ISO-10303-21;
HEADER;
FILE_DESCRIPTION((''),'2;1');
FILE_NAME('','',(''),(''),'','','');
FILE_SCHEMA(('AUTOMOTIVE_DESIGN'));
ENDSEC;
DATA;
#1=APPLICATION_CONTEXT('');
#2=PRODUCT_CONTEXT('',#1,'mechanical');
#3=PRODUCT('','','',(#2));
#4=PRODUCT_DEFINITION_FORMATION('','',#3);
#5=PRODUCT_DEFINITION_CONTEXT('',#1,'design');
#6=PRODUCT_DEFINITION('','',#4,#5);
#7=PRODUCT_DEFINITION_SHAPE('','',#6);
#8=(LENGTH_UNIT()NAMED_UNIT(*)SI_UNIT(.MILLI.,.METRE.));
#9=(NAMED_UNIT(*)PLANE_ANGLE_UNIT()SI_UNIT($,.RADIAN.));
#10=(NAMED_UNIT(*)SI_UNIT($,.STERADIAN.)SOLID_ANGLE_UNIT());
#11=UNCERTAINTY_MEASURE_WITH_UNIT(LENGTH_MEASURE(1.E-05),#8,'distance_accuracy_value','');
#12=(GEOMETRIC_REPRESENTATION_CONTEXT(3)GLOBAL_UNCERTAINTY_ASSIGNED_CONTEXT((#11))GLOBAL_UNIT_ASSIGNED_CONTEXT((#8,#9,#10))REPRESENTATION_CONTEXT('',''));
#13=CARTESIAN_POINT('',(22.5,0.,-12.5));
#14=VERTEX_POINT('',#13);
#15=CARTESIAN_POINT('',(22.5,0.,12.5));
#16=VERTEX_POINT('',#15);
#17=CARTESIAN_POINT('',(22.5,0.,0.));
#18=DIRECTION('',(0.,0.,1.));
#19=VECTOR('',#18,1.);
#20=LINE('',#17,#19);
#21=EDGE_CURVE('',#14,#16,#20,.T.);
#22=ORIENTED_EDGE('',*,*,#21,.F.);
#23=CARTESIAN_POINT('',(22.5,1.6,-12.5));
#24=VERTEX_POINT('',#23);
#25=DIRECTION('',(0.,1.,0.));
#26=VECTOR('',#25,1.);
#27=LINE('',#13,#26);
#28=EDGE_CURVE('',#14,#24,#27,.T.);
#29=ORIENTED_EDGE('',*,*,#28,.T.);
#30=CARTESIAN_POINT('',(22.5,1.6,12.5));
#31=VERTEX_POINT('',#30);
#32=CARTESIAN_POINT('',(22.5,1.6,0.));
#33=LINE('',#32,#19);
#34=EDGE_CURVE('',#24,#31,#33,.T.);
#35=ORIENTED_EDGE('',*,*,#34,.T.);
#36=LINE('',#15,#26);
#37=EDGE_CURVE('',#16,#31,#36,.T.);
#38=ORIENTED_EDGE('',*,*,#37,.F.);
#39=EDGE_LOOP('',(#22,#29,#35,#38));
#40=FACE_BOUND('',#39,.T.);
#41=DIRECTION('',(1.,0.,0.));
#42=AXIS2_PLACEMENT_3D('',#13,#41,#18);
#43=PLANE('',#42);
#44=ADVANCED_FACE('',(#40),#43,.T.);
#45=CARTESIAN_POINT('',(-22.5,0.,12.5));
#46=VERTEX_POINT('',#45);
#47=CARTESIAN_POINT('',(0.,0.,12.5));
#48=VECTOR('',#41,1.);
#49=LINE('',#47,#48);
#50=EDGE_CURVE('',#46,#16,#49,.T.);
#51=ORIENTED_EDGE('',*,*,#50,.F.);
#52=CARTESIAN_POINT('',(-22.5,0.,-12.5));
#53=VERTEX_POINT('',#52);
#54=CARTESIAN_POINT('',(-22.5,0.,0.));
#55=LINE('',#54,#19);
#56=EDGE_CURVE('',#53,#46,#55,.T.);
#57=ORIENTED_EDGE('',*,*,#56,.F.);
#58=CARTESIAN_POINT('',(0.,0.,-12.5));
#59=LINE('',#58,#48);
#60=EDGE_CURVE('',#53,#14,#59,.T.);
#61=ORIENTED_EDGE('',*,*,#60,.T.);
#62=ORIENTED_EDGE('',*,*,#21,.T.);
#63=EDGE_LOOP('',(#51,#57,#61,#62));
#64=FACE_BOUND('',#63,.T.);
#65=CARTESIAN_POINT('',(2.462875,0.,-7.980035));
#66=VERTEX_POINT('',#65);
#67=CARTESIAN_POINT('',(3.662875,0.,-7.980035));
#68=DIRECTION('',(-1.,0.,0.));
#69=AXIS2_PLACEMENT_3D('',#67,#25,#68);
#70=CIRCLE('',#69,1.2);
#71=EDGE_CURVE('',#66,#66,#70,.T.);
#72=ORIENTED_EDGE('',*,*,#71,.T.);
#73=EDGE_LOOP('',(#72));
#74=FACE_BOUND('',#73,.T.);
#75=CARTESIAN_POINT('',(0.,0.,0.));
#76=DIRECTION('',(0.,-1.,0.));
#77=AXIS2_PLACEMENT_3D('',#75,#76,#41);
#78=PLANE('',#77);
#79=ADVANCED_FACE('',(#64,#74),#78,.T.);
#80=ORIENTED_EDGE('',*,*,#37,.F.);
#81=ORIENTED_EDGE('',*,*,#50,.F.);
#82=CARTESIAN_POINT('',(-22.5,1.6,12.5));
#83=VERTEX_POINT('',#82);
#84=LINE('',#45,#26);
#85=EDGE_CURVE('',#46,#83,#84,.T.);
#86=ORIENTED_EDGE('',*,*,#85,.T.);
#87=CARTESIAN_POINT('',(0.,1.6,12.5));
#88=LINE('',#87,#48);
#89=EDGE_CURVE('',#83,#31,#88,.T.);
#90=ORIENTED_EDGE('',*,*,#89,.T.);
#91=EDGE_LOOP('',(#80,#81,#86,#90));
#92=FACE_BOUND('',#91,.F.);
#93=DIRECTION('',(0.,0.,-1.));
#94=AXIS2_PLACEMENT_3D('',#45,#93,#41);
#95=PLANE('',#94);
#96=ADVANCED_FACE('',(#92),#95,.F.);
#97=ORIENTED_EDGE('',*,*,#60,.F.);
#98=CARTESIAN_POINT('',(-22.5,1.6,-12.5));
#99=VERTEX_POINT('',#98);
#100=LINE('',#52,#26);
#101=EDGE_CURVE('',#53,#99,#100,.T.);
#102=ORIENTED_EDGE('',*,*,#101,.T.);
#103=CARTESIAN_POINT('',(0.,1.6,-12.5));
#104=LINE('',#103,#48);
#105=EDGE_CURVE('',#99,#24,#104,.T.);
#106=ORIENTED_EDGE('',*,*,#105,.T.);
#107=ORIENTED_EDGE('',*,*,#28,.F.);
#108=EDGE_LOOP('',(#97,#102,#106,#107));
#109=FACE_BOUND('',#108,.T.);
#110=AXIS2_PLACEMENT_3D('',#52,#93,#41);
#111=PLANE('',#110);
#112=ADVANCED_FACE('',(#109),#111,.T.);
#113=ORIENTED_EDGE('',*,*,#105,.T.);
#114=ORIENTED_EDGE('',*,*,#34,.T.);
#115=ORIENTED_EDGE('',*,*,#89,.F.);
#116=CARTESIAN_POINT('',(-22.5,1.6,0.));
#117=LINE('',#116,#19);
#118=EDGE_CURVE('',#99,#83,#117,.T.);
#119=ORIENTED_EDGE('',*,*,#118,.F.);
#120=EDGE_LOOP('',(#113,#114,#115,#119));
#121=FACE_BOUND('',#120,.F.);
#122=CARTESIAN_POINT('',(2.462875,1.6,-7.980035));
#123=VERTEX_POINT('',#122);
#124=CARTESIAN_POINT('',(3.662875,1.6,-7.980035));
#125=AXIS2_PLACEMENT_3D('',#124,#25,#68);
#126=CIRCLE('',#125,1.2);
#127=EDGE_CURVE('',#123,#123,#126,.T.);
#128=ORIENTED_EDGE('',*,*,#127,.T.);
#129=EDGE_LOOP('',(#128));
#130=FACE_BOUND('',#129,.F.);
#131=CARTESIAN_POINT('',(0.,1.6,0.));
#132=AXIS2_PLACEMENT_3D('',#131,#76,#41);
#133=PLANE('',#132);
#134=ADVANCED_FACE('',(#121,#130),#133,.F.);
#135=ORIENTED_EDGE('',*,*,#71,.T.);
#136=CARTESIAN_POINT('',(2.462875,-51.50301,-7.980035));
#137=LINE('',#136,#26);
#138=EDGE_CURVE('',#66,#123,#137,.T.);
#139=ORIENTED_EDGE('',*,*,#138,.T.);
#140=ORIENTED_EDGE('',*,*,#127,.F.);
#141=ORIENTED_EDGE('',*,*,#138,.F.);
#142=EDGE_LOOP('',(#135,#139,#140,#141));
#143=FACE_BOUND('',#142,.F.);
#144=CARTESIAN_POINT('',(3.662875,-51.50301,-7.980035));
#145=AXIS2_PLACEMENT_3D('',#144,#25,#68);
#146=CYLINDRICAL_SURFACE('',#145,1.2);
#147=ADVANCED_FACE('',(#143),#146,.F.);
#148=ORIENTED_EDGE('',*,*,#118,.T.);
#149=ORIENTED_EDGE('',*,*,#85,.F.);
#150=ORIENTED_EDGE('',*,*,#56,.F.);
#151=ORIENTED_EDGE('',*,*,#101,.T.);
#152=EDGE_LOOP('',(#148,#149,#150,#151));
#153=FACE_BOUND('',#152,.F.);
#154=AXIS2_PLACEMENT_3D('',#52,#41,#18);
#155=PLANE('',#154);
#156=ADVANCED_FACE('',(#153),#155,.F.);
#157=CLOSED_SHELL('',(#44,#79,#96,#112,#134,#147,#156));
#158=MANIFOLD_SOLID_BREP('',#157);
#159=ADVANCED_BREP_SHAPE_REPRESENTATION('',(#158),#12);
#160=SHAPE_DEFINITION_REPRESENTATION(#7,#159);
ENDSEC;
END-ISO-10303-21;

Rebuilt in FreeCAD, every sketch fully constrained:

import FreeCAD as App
import Part
import Sketcher

V = App.Vector


def add_polygon(sketch, points):
    """Adds a closed chain of lines whose ends are joined by coincident constraints."""
    first, n = sketch.GeometryCount, len(points)
    for a, b in zip(points, points[1:] + points[:1]):
        sketch.addGeometry(Part.LineSegment(App.Vector(*a, 0), App.Vector(*b, 0)), False)
    for i in range(n):
        sketch.addConstraint(Sketcher.Constraint("Coincident", first + i, 2, first + (i + 1) % n, 1))

doc = App.newDocument("Part")
body = doc.addObject("PartDesign::Body", "Body")

# Sketch on XZ plane
sketch1 = body.newObject("Sketcher::SketchObject", "Sketch")
sketch1.AttachmentSupport = (doc.getObject("XZ_Plane"), [""])
sketch1.MapMode = "FlatFace"
add_polygon(sketch1, [(-22, 12), (-22, -12), (22, -12), (22, 12)])  # lines 0-3
sketch1.addConstraint([
    Sketcher.Constraint("Vertical", 0),
    Sketcher.Constraint("Horizontal", 1),
    Sketcher.Constraint("Vertical", 2),
    Sketcher.Constraint("Horizontal", 3),
    Sketcher.Constraint("Symmetric", 0, 2, 2, 2, -1, 1),
    Sketcher.Constraint("DistanceX", 1, 1, 1, 2, 45.0),
    Sketcher.Constraint("DistanceY", 0, 2, 0, 1, 25.0),
])
pad1 = body.newObject("PartDesign::Pad", "Pad")
pad1.Profile = sketch1
pad1.Length = 1.6
pad1.Reversed = True

# Sketch on XZ plane
sketch2 = body.newObject("Sketcher::SketchObject", "Sketch001")
sketch2.AttachmentSupport = (doc.getObject("XZ_Plane"), [""])
sketch2.MapMode = "FlatFace"
sketch2.addGeometry(Part.Circle(V(3.7, -8, 0), V(0, 0, 1), 1.2), False)
sketch2.addConstraint([
    Sketcher.Constraint("Diameter", 0, 2.4),
    Sketcher.Constraint("DistanceX", -1, 1, 0, 3, 3.662875),
    Sketcher.Constraint("DistanceY", 0, 3, -1, 1, 7.980035),
])
doc.recompute()
hole = body.newObject("PartDesign::Hole", "Hole")
hole.Profile = sketch2
hole.ThreadType = "None"
hole.Diameter = 2.4
hole.DepthType = "ThroughAll"

doc.recompute()
